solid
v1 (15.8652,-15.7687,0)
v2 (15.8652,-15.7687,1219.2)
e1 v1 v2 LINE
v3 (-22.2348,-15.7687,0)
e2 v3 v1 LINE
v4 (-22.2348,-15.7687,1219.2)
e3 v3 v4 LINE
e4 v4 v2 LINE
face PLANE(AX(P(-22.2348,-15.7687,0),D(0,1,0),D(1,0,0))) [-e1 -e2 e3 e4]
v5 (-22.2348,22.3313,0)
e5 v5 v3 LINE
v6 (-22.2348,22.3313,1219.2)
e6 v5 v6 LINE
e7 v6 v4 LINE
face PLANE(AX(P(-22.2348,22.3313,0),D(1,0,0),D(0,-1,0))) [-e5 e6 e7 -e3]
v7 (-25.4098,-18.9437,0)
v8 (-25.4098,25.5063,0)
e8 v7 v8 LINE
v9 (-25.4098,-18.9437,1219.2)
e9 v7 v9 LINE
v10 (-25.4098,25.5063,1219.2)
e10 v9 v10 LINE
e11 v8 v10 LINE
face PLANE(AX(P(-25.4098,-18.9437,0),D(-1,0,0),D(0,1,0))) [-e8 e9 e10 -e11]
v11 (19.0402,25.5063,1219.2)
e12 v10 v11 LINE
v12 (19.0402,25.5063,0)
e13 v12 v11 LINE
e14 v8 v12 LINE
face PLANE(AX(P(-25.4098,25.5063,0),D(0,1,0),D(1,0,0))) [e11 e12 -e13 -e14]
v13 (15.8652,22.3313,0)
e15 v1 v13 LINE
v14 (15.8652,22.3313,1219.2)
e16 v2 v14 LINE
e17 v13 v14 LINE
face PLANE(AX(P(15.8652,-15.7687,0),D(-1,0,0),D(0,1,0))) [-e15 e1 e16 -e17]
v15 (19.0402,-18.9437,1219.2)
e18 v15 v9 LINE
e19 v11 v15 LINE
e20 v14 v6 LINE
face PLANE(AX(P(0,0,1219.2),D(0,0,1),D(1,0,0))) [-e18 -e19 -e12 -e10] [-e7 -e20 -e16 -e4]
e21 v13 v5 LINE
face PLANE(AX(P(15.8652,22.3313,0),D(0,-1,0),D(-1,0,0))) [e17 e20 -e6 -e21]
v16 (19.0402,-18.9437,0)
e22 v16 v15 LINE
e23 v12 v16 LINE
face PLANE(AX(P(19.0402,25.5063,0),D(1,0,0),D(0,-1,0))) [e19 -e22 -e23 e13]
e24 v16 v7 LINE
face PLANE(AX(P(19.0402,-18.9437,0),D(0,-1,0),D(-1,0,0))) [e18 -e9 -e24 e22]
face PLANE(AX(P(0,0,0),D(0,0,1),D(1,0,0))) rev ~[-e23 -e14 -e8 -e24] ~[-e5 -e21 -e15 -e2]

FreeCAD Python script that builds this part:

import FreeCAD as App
import Part
import Sketcher
Q = App.Units.Quantity

doc = App.newDocument("Part")
body = doc.addObject("PartDesign::Body", "Body")

sketch1 = doc.addObject("Sketcher::SketchObject", "Sketch")
body.addObject(sketch1)
sketch1.AttachmentSupport = (doc.XY_Plane, [""])
sketch1.MapMode = "FlatFace"
sketch1.addGeometry(Part.LineSegment(App.Vector(19.0402, 25.5063, 0), App.Vector(-25.4098, 25.5063, 0)), False)
sketch1.addGeometry(Part.LineSegment(App.Vector(-25.4098, 25.5063, 0), App.Vector(-25.4098, -18.9437, 0)), False)
sketch1.addGeometry(Part.LineSegment(App.Vector(-25.4098, -18.9437, 0), App.Vector(19.0402, -18.9437, 0)), False)
sketch1.addGeometry(Part.LineSegment(App.Vector(19.0402, -18.9437, 0), App.Vector(19.0402, 25.5063, 0)), False)
sketch1.addGeometry(Part.LineSegment(App.Vector(-22.2348, 22.3313, 0), App.Vector(15.8652, 22.3313, 0)), False)
sketch1.addGeometry(Part.LineSegment(App.Vector(15.8652, 22.3313, 0), App.Vector(15.8652, -15.7687, 0)), False)
sketch1.addGeometry(Part.LineSegment(App.Vector(15.8652, -15.7687, 0), App.Vector(-22.2348, -15.7687, 0)), False)
sketch1.addGeometry(Part.LineSegment(App.Vector(-22.2348, -15.7687, 0), App.Vector(-22.2348, 22.3313, 0)), False)
sketch1.addConstraint(Sketcher.Constraint("Coincident", 0, 2, 1, 1))
sketch1.addConstraint(Sketcher.Constraint("Coincident", 1, 2, 2, 1))
sketch1.addConstraint(Sketcher.Constraint("Coincident", 2, 2, 3, 1))
sketch1.addConstraint(Sketcher.Constraint("Coincident", 3, 2, 0, 1))
sketch1.addConstraint(Sketcher.Constraint("Coincident", 4, 2, 5, 1))
sketch1.addConstraint(Sketcher.Constraint("Coincident", 5, 2, 6, 1))
sketch1.addConstraint(Sketcher.Constraint("Coincident", 6, 2, 7, 1))
sketch1.addConstraint(Sketcher.Constraint("Coincident", 7, 2, 4, 1))
sketch1.addConstraint(Sketcher.Constraint("Horizontal", 0))
sketch1.addConstraint(Sketcher.Constraint("Vertical", 1))
sketch1.addConstraint(Sketcher.Constraint("Horizontal", 2))
sketch1.addConstraint(Sketcher.Constraint("Vertical", 3))
sketch1.addConstraint(Sketcher.Constraint("Horizontal", 4))
sketch1.addConstraint(Sketcher.Constraint("Vertical", 5))
sketch1.addConstraint(Sketcher.Constraint("Horizontal", 6))
sketch1.addConstraint(Sketcher.Constraint("Vertical", 7))
sketch1.addConstraint(Sketcher.Constraint("Equal", 2, 1))
sketch1.addConstraint(Sketcher.Constraint("Equal", 6, 5))
sketch1.addConstraint(Sketcher.Constraint("DistanceX", 0, 2, 0, 1, Q("1.75 in")))
sketch1.addConstraint(Sketcher.Constraint("DistanceX", 4, 1, 4, 2, Q("1.5 in")))
sketch1.addConstraint(Sketcher.Constraint("DistanceX", 4, 2, 3, 2, Q("0.125 in")))
sketch1.addConstraint(Sketcher.Constraint("DistanceY", 4, 2, 3, 2, Q("0.125 in")))
sketch1.addConstraint(Sketcher.Constraint("DistanceX", 0, 2, -1, 1, 25.4098))
sketch1.addConstraint(Sketcher.Constraint("DistanceY", -1, 1, 0, 2, 25.5063))
pad1 = doc.addObject("PartDesign::Pad", "Pad")
body.addObject(pad1)
pad1.Profile = sketch1
pad1.Length = Q("48 in")

doc.recompute()
